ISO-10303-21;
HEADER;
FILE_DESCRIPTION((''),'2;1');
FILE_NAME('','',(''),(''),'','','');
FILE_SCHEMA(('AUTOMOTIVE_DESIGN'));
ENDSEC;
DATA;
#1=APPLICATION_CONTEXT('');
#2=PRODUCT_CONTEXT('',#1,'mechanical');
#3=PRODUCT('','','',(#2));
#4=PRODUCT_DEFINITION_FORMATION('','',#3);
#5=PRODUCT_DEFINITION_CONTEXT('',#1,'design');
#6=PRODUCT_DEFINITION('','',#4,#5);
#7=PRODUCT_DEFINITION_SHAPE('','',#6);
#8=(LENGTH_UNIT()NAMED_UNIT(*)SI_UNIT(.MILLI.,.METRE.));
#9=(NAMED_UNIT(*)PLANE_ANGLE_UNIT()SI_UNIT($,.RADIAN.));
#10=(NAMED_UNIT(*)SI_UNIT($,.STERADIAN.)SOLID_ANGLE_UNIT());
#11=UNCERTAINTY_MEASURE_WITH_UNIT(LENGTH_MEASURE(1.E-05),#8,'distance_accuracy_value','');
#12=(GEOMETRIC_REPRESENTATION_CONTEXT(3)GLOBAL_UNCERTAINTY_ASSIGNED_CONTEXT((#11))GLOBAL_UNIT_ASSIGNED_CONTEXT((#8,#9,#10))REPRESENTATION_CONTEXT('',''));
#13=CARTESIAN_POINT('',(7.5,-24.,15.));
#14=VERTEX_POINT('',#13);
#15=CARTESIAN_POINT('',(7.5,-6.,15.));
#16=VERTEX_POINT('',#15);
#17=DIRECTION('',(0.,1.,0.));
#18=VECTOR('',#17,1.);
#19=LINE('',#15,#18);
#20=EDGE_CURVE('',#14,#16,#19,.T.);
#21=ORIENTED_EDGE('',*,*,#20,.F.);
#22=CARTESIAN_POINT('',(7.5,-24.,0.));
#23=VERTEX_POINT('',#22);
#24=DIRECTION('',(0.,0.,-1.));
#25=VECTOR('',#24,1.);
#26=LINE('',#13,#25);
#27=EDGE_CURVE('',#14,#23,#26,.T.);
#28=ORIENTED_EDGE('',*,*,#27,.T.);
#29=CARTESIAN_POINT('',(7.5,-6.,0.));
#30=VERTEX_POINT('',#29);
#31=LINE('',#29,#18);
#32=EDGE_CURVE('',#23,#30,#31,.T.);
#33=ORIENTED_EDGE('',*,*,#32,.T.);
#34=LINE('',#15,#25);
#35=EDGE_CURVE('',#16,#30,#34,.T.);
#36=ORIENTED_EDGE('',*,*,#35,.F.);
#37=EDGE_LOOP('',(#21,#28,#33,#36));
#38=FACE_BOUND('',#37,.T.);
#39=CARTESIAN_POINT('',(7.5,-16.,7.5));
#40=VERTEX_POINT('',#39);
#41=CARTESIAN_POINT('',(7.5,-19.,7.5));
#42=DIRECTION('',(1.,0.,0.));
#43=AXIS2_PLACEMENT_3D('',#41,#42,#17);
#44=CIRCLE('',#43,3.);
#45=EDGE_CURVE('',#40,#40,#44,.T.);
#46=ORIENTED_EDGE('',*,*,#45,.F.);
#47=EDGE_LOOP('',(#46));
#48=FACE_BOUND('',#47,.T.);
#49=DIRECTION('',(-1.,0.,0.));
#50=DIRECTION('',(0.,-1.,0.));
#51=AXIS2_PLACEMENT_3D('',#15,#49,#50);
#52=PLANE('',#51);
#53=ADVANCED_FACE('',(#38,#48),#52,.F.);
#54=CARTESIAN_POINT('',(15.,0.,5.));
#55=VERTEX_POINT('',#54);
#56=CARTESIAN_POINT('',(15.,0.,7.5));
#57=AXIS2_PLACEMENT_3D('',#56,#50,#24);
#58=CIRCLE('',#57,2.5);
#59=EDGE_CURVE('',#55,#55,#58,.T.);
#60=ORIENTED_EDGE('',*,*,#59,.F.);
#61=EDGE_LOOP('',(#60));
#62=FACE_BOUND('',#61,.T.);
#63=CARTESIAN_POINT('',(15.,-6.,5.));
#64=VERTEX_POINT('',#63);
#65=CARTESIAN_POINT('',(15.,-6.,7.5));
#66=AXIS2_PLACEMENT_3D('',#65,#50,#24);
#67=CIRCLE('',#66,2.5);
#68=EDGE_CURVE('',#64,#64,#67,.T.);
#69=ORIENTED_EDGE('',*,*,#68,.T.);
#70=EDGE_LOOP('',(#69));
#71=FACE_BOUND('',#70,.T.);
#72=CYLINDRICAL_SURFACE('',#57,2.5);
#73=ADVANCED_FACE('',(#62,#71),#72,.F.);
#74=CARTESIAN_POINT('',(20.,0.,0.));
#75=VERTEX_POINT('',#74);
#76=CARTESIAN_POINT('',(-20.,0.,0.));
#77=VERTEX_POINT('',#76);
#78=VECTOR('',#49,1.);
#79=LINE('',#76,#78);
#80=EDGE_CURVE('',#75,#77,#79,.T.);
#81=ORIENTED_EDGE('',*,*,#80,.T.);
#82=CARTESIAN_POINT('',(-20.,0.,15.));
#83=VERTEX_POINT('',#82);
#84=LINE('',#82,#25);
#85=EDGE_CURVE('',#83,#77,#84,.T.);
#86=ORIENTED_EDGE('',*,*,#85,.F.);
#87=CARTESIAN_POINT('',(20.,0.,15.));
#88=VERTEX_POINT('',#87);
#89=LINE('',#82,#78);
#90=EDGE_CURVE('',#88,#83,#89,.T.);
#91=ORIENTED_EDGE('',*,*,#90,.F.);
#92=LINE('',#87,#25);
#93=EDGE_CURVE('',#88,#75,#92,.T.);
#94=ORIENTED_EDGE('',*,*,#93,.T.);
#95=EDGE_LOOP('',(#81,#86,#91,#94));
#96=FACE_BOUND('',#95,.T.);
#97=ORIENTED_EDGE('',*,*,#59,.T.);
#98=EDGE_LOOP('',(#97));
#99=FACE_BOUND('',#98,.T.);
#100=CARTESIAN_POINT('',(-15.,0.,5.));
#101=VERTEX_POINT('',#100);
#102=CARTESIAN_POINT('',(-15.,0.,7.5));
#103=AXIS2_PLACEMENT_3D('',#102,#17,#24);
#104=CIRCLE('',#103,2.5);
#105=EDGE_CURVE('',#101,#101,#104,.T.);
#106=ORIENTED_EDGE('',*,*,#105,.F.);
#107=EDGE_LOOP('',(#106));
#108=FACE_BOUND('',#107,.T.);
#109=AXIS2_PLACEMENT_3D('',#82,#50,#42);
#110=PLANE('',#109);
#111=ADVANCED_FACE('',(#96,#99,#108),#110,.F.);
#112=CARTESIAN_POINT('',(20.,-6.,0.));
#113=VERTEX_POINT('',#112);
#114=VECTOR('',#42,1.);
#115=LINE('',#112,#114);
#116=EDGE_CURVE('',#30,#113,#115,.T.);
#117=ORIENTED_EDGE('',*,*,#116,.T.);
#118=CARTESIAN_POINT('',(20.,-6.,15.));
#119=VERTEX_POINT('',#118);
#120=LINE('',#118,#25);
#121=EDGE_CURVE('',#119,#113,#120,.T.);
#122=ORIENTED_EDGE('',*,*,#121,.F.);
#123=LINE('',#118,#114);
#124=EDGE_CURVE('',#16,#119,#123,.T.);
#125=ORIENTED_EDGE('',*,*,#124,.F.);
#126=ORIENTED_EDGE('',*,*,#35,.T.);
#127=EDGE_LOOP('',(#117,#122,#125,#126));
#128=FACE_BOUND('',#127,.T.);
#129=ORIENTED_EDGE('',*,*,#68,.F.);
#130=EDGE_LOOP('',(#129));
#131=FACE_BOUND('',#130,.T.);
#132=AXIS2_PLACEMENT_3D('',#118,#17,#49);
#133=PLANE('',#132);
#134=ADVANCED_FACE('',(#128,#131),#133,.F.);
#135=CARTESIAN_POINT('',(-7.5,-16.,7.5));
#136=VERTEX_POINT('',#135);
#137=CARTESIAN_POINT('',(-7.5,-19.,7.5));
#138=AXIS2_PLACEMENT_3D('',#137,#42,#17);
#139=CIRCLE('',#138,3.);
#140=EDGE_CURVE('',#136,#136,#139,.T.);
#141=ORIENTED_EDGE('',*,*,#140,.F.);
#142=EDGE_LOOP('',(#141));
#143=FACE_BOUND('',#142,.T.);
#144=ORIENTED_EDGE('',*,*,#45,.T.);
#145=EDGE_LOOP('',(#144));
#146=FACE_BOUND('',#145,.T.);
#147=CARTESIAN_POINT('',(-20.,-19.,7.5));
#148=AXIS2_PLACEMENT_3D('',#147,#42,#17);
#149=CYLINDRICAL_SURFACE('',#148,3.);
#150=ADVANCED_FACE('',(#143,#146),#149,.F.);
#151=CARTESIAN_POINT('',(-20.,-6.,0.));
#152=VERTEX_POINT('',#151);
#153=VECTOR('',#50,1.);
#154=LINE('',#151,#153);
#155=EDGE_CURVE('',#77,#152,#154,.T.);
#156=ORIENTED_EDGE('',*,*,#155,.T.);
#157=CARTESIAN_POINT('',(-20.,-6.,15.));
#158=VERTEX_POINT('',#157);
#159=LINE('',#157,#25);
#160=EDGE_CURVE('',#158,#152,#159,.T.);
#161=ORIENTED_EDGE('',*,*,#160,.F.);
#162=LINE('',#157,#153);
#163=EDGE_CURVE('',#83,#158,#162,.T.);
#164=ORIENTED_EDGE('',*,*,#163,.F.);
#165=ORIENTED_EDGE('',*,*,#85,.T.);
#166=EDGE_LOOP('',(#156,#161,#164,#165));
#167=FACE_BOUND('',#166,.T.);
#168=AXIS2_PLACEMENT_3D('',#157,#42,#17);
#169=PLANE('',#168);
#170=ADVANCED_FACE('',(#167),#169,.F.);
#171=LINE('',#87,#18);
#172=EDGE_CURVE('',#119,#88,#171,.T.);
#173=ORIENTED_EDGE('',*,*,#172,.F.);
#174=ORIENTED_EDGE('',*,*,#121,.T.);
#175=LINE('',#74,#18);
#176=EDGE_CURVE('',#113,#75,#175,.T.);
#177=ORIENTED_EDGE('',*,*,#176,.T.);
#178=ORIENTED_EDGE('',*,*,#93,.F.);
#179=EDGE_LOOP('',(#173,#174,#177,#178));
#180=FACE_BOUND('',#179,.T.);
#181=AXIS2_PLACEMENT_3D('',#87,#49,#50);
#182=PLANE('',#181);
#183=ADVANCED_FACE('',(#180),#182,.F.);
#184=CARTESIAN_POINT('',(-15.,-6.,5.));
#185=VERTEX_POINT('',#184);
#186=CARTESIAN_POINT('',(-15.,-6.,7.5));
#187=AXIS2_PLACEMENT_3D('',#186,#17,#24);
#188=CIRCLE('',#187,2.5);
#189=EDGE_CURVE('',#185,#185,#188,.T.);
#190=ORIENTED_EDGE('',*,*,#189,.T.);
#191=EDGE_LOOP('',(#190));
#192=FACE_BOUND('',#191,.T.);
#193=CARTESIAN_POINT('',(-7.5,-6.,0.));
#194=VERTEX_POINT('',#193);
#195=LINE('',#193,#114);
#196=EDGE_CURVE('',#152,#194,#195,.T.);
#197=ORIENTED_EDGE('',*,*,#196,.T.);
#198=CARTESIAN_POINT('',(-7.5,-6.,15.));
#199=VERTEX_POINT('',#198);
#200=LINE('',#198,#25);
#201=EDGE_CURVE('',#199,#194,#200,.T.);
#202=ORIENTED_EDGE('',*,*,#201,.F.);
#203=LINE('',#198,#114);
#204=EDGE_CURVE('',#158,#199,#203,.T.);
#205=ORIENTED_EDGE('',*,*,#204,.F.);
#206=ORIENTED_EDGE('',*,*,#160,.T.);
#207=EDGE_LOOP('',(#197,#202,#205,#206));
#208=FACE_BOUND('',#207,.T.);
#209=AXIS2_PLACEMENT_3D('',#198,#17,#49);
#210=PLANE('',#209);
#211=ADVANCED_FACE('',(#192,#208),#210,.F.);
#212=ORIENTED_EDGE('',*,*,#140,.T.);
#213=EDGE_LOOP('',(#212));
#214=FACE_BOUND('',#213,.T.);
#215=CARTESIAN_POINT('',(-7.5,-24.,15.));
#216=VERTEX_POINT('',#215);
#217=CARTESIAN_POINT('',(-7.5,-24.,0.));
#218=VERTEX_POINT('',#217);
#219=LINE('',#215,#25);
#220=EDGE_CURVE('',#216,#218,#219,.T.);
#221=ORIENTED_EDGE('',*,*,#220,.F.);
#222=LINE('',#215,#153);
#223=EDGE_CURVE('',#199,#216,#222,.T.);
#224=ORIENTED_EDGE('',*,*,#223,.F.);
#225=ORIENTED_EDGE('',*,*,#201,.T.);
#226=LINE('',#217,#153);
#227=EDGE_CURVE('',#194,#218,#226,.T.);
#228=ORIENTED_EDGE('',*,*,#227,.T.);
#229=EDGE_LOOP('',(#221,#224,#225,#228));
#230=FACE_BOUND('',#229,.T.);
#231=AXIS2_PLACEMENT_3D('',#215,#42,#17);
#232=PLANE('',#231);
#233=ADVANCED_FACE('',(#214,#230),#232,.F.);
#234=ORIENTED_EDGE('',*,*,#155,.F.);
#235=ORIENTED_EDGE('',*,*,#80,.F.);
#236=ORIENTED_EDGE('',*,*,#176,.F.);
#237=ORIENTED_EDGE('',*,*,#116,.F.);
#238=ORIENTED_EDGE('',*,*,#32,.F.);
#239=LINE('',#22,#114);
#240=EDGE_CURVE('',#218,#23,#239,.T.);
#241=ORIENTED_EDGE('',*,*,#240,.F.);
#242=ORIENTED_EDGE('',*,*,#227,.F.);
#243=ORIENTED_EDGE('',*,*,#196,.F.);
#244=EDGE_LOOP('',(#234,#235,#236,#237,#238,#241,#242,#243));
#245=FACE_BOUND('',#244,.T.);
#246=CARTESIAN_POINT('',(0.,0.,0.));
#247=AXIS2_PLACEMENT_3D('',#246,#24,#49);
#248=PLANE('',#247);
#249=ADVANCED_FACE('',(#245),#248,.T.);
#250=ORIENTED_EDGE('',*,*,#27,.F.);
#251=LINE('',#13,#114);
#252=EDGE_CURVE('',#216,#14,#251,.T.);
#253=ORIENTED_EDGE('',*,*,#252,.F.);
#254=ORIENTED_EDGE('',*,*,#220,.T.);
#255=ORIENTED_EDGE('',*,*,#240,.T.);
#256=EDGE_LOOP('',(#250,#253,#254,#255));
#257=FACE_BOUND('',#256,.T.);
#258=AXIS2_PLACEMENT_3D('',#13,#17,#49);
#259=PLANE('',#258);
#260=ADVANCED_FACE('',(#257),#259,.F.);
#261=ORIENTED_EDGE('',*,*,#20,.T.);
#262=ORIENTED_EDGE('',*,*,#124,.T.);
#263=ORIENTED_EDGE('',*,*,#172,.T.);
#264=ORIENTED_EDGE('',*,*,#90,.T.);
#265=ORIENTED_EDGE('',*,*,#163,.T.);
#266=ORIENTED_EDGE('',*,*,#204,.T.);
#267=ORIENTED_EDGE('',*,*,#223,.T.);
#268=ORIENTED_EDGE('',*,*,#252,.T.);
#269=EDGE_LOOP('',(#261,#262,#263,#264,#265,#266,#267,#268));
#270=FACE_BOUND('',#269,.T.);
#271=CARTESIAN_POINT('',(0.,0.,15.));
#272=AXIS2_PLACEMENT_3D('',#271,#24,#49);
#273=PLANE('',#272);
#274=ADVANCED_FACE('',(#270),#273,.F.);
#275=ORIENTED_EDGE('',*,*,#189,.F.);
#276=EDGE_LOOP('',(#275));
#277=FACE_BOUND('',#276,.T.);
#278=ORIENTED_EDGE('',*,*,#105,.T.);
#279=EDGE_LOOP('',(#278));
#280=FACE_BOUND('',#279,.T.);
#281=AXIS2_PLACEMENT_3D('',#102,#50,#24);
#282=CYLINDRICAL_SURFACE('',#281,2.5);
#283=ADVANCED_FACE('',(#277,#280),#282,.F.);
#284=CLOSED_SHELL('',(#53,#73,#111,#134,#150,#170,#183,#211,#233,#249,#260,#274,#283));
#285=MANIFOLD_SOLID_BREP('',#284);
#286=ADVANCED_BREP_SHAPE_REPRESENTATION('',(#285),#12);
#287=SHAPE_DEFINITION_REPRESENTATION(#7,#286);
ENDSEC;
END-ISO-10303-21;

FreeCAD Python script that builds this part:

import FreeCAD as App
import Part
import Sketcher

doc = App.newDocument("Part")
body = doc.addObject("PartDesign::Body", "Body")

# Sketch on XY plane
sketch1 = doc.addObject("Sketcher::SketchObject", "Sketch")
body.addObject(sketch1)
sketch1.AttachmentSupport = (doc.XY_Plane, [""])
sketch1.MapMode = "FlatFace"
sketch1.addGeometry(Part.LineSegment(App.Vector(20, 0, 0), App.Vector(-20, 0, 0)), False)
sketch1.addGeometry(Part.LineSegment(App.Vector(-20, 0, 0), App.Vector(-20, -6, 0)), False)
sketch1.addGeometry(Part.LineSegment(App.Vector(-20, -6, 0), App.Vector(-8, -6, 0)), False)
sketch1.addGeometry(Part.LineSegment(App.Vector(-8, -6, 0), App.Vector(-8, -24, 0)), False)
sketch1.addGeometry(Part.LineSegment(App.Vector(-8, -24, 0), App.Vector(8, -24, 0)), False)
sketch1.addGeometry(Part.LineSegment(App.Vector(8, -24, 0), App.Vector(8, -6, 0)), False)
sketch1.addGeometry(Part.LineSegment(App.Vector(8, -6, 0), App.Vector(20, -6, 0)), False)
sketch1.addGeometry(Part.LineSegment(App.Vector(20, -6, 0), App.Vector(20, 0, 0)), False)
sketch1.addConstraint(Sketcher.Constraint("Coincident", 0, 2, 1, 1))
sketch1.addConstraint(Sketcher.Constraint("Coincident", 1, 2, 2, 1))
sketch1.addConstraint(Sketcher.Constraint("Coincident", 2, 2, 3, 1))
sketch1.addConstraint(Sketcher.Constraint("Coincident", 3, 2, 4, 1))
sketch1.addConstraint(Sketcher.Constraint("Coincident", 4, 2, 5, 1))
sketch1.addConstraint(Sketcher.Constraint("Coincident", 5, 2, 6, 1))
sketch1.addConstraint(Sketcher.Constraint("Coincident", 6, 2, 7, 1))
sketch1.addConstraint(Sketcher.Constraint("Coincident", 7, 2, 0, 1))
sketch1.addConstraint(Sketcher.Constraint("Horizontal", 0))
sketch1.addConstraint(Sketcher.Constraint("Vertical", 1))
sketch1.addConstraint(Sketcher.Constraint("Horizontal", 2))
sketch1.addConstraint(Sketcher.Constraint("Vertical", 3))
sketch1.addConstraint(Sketcher.Constraint("Horizontal", 4))
sketch1.addConstraint(Sketcher.Constraint("Vertical", 5))
sketch1.addConstraint(Sketcher.Constraint("Horizontal", 6))
sketch1.addConstraint(Sketcher.Constraint("Vertical", 7))
sketch1.addConstraint(Sketcher.Constraint("Symmetric", 0, 2, 7, 2, -1, 1))
sketch1.addConstraint(Sketcher.Constraint("Symmetric", 2, 2, 5, 2, -2))
sketch1.addConstraint(Sketcher.Constraint("DistanceX", 0, 2, 0, 1, 40.0))
sketch1.addConstraint(Sketcher.Constraint("DistanceX", 4, 1, 4, 2, 15.0))
sketch1.addConstraint(Sketcher.Constraint("DistanceY", 1, 2, 1, 1, 6.0))
sketch1.addConstraint(Sketcher.Constraint("DistanceY", 3, 2, 3, 1, 18.0))
pad1 = doc.addObject("PartDesign::Pad", "Pad")
body.addObject(pad1)
pad1.Profile = sketch1
pad1.Length = 15

# Sketch on XZ plane
sketch2 = doc.addObject("Sketcher::SketchObject", "Sketch001")
body.addObject(sketch2)
sketch2.AttachmentSupport = (doc.XZ_Plane, [""])
sketch2.MapMode = "FlatFace"
sketch2.AttachmentOffset = App.Placement(App.Vector(0, 0, 6), App.Rotation())
sketch2.addGeometry(Part.Circle(App.Vector(15, 7.5, 0), App.Vector(0, 0, 1), 2.5), False)
sketch2.addConstraint(Sketcher.Constraint("Diameter", 0, 5.0))
sketch2.addConstraint(Sketcher.Constraint("DistanceX", -1, 1, 0, 3, 15.0))
sketch2.addConstraint(Sketcher.Constraint("DistanceY", -1, 1, 0, 3, 7.5))
pocket1 = doc.addObject("PartDesign::Pocket", "Pocket")
body.addObject(pocket1)
pocket1.Profile = sketch2
pocket1.Type = "ThroughAll"
doc.recompute()

mirrored = doc.addObject("PartDesign::Mirrored", "Mirrored")
body.addObject(mirrored)
mirrored.Originals = [pocket1]
mirrored.MirrorPlane = (doc.YZ_Plane, [""])
body.Tip = mirrored

# Sketch on YZ plane
sketch3 = doc.addObject("Sketcher::SketchObject", "Sketch002")
body.addObject(sketch3)
sketch3.AttachmentSupport = (doc.YZ_Plane, [""])
sketch3.MapMode = "FlatFace"
sketch3.AttachmentOffset = App.Placement(App.Vector(0, 0, 7.5), App.Rotation())
sketch3.addGeometry(Part.Circle(App.Vector(-19, 7.5, 0), App.Vector(0, 0, 1), 3), False)
sketch3.addConstraint(Sketcher.Constraint("Diameter", 0, 6.0))
sketch3.addConstraint(Sketcher.Constraint("DistanceX", 0, 3, -1, 1, 19.0))
sketch3.addConstraint(Sketcher.Constraint("DistanceY", -1, 1, 0, 3, 7.5))
pocket2 = doc.addObject("PartDesign::Pocket", "Pocket001")
body.addObject(pocket2)
pocket2.Profile = sketch3
pocket2.Type = "ThroughAll"

doc.recompute()
